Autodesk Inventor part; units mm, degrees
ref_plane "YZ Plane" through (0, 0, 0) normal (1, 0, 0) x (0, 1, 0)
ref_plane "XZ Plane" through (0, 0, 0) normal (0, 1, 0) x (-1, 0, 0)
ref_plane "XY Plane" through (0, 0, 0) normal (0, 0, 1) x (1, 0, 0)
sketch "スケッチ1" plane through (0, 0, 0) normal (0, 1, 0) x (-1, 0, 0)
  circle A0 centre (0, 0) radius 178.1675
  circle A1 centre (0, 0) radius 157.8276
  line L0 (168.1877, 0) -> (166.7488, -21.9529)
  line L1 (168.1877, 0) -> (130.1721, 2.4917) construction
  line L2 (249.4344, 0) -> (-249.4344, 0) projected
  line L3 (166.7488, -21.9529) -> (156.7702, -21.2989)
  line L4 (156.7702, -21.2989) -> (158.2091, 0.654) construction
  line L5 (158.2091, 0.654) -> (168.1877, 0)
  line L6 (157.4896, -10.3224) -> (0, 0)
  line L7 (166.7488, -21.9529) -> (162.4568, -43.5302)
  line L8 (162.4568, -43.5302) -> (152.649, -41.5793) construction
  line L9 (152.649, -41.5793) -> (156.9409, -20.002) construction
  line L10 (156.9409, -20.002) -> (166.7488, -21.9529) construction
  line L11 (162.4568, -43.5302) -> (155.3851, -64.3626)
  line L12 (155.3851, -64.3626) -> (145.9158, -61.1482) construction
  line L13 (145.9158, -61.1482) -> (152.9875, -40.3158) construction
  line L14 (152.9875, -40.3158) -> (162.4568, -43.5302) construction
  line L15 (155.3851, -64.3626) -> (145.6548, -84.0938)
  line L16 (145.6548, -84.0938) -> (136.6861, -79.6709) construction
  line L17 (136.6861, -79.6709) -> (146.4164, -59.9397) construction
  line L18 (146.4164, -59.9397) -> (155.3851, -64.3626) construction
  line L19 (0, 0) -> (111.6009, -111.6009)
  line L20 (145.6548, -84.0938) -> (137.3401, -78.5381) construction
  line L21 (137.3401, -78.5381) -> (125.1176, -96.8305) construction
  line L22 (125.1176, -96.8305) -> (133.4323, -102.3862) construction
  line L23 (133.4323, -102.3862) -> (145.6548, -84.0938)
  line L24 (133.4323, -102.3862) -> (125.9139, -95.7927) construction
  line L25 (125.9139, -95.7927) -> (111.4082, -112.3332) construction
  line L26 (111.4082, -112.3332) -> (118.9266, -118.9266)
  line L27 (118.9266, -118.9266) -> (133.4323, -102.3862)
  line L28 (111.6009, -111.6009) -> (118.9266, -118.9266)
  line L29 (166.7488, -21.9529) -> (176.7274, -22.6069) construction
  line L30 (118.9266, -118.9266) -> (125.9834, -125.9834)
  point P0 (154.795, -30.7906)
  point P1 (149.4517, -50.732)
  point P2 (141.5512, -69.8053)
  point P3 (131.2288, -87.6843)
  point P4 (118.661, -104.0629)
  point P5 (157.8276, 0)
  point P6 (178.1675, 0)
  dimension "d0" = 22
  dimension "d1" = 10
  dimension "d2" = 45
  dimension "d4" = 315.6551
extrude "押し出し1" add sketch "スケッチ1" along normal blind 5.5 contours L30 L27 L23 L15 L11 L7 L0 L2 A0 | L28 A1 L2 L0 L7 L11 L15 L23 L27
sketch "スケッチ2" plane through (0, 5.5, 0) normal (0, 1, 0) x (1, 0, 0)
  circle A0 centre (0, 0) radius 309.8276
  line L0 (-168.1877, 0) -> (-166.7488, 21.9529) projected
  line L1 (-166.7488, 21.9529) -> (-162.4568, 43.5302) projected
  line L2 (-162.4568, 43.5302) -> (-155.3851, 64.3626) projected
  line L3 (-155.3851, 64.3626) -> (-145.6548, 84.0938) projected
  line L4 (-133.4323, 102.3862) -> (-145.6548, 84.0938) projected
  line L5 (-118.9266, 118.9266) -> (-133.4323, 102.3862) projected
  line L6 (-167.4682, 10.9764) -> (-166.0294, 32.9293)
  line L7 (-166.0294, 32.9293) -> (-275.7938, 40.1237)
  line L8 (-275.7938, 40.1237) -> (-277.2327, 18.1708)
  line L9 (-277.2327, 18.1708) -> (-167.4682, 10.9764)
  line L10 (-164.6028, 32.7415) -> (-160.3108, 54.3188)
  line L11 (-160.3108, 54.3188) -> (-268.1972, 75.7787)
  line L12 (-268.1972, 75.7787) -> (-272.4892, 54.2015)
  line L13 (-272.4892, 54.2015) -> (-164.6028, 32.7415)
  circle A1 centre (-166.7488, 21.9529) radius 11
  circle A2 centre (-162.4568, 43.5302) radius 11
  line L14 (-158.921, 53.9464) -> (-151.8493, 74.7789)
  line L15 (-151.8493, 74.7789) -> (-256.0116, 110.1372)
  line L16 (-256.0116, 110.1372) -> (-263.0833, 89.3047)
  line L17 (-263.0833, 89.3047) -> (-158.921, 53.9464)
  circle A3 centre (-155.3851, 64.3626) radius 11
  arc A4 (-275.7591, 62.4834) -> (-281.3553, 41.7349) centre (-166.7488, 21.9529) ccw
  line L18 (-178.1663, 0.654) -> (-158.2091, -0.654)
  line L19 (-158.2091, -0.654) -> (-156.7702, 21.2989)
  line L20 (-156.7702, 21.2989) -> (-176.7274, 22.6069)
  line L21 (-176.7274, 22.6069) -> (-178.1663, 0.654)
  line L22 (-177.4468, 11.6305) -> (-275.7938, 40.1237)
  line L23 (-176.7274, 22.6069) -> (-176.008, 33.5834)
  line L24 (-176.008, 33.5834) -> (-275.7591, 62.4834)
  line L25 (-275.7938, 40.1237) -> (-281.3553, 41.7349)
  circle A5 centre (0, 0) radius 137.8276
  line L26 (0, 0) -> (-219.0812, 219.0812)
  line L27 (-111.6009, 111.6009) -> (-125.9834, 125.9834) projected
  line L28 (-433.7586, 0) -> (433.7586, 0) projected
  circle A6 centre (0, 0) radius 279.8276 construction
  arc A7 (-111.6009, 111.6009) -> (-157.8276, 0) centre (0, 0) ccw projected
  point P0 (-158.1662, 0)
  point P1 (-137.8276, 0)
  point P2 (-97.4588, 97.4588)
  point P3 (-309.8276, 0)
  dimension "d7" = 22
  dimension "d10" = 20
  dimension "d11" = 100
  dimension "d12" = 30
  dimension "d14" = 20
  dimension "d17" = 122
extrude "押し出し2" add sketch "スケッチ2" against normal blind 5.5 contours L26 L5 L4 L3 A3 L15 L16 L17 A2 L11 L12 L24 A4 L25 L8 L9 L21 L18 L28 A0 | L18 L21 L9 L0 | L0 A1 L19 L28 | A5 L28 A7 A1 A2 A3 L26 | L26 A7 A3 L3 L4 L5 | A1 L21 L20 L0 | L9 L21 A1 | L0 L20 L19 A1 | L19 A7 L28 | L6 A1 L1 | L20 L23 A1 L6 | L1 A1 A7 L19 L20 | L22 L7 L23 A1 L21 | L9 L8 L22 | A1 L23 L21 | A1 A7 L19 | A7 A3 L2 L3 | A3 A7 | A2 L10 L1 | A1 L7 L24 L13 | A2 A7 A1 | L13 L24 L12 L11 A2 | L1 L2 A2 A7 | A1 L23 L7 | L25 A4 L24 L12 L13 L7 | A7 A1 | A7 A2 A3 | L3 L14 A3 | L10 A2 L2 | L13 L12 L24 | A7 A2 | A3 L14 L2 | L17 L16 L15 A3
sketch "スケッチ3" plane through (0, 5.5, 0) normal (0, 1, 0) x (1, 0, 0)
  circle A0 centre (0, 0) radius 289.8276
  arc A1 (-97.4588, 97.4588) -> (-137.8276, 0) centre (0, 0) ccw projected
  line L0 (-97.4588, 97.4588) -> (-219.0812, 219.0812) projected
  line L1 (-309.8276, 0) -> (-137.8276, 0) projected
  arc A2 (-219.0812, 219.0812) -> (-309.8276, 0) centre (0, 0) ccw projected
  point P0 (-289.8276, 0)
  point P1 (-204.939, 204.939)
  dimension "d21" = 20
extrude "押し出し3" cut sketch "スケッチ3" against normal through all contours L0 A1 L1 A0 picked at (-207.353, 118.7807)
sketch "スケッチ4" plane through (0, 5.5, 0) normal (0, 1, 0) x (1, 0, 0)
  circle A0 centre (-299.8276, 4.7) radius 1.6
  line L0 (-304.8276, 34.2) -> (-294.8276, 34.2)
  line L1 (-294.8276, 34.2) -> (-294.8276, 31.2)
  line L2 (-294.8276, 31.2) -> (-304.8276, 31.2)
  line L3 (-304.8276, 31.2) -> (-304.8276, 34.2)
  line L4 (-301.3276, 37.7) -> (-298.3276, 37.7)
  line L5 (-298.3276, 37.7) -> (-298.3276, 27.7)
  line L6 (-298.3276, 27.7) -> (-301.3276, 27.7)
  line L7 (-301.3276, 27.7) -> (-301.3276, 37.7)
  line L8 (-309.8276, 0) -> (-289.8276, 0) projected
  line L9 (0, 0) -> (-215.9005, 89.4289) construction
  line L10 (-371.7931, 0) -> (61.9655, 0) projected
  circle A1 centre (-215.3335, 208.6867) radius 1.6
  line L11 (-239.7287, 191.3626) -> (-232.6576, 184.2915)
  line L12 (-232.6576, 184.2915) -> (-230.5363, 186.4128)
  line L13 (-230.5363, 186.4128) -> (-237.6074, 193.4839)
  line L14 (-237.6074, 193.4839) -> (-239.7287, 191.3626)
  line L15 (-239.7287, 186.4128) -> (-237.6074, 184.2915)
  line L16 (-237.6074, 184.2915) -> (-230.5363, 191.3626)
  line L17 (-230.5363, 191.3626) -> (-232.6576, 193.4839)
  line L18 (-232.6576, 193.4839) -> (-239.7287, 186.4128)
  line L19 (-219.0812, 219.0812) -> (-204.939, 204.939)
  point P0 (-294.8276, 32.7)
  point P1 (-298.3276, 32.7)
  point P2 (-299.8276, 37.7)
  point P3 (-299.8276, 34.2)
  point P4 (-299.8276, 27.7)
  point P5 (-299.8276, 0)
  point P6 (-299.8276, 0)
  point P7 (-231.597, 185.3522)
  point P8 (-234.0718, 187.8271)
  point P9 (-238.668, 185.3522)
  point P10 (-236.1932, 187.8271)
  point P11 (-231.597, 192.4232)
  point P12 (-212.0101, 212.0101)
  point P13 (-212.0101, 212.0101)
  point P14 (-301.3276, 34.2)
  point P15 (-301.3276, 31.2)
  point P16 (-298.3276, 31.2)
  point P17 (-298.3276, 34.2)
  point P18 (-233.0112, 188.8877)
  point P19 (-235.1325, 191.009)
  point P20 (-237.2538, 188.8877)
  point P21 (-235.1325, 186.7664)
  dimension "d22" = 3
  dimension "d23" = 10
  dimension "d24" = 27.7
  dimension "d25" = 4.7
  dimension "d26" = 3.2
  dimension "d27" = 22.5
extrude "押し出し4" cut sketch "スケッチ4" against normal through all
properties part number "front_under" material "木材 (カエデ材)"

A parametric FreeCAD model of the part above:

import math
import FreeCAD as App
import Part
import Sketcher
from FreeCAD import Vector
Q = App.Units.Quantity

doc = App.newDocument("Part")
body = doc.addObject("PartDesign::Body", "Body")

# Sketch on XZ plane
sketch1 = body.newObject("Sketcher::SketchObject", "Sketch")
sketch1.AttachmentSupport = (doc.getObject("XZ_Plane"), [""])
sketch1.MapMode = "FlatFace"
sketch1.addGeometry(Part.ArcOfCircle(Part.Circle(Vector(0, 0, 0), Vector(0, 0, 1), 178), math.radians(180), math.radians(225)), False)
sketch1.addGeometry(Part.LineSegment(Vector(-178, 0, 0), Vector(-158, 0, 0)), False)
sketch1.addGeometry(Part.ArcOfCircle(Part.Circle(Vector(0, 0, 0), Vector(0, 0, 1), 158), math.radians(180), math.radians(225)), False)
sketch1.addGeometry(Part.LineSegment(Vector(-112, -112, 0), Vector(-126, -126, 0)), False)
sketch1.addConstraint(Sketcher.Constraint("Coincident", 0, 1, 1, 1))
sketch1.addConstraint(Sketcher.Constraint("Coincident", 1, 2, 2, 1))
sketch1.addConstraint(Sketcher.Constraint("Coincident", 2, 2, 3, 1))
sketch1.addConstraint(Sketcher.Constraint("Coincident", 3, 2, 0, 2))
sketch1.addConstraint(Sketcher.Constraint("Horizontal", 1))
sketch1.addConstraint(Sketcher.Constraint("Coincident", 0, 3, -1, 1))
sketch1.addConstraint(Sketcher.Constraint("Coincident", 2, 3, -1, 1))
sketch1.addConstraint(Sketcher.Constraint("PointOnObject", 0, 1, -1))
sketch1.addConstraint(Sketcher.Constraint("Radius", 2, Q("157.8276 mm")))
sketch1.addConstraint(Sketcher.Constraint("Angle", 3, Q("-135 deg")))
sketch1.addConstraint(Sketcher.Constraint("DistanceX", 1, 1, 1, 2, Q("20.34 mm")))
sketch1.addConstraint(Sketcher.Constraint("DistanceX", 2, 2, -1, 1, Q("111.601 mm")))
pad1 = body.newObject("PartDesign::Pad", "Pad")
pad1.Profile = sketch1
pad1.Length = 5.5
pad1.Reversed = True

# Sketch on XZ plane
sketch2 = body.newObject("Sketcher::SketchObject", "Sketch001")
sketch2.AttachmentSupport = (doc.getObject("XZ_Plane"), [""])
sketch2.MapMode = "FlatFace"
sketch2.AttachmentOffset = App.Placement(Vector(0, 0, -5.5), App.Rotation())
sketch2.addGeometry(Part.ArcOfCircle(Part.Circle(Vector(0, 0, 0), Vector(0, 0, 1), 310), math.radians(180), math.radians(225)), False)
sketch2.addGeometry(Part.LineSegment(Vector(-310, 0, 0), Vector(-138, 0, 0)), False)
sketch2.addGeometry(Part.ArcOfCircle(Part.Circle(Vector(0, 0, 0), Vector(0, 0, 1), 138), math.radians(180), math.radians(225)), False)
sketch2.addGeometry(Part.LineSegment(Vector(-97, -97, 0), Vector(-219, -219, 0)), False)
sketch2.addConstraint(Sketcher.Constraint("Coincident", 0, 1, 1, 1))
sketch2.addConstraint(Sketcher.Constraint("Coincident", 1, 2, 2, 1))
sketch2.addConstraint(Sketcher.Constraint("Coincident", 2, 2, 3, 1))
sketch2.addConstraint(Sketcher.Constraint("Coincident", 3, 2, 0, 2))
sketch2.addConstraint(Sketcher.Constraint("Horizontal", 1))
sketch2.addConstraint(Sketcher.Constraint("Coincident", 0, 3, -1, 1))
sketch2.addConstraint(Sketcher.Constraint("Coincident", 2, 3, -1, 1))
sketch2.addConstraint(Sketcher.Constraint("PointOnObject", 0, 1, -1))
sketch2.addConstraint(Sketcher.Constraint("DistanceX", 1, 1, 1, 2, Q("172 mm")))
sketch2.addConstraint(Sketcher.Constraint("Angle", 3, Q("-135 deg")))
sketch2.addConstraint(Sketcher.Constraint("Radius", 0, Q("309.8276 mm")))
sketch2.addConstraint(Sketcher.Constraint("DistanceX", 2, 2, -1, 1, Q("97.4588 mm")))
pad2 = body.newObject("PartDesign::Pad", "Pad001")
pad2.Profile = sketch2
pad2.Length = 5.5

# Sketch on XZ plane
sketch3 = body.newObject("Sketcher::SketchObject", "Sketch002")
sketch3.AttachmentSupport = (doc.getObject("XZ_Plane"), [""])
sketch3.MapMode = "FlatFace"
sketch3.AttachmentOffset = App.Placement(Vector(0, 0, -5.5), App.Rotation())
sketch3.addGeometry(Part.LineSegment(Vector(-97, -97, 0), Vector(-205, -205, 0)), False)
sketch3.addGeometry(Part.ArcOfCircle(Part.Circle(Vector(0, 0, 0), Vector(0, 0, 1), 290), math.radians(180), math.radians(225)), False)
sketch3.addGeometry(Part.LineSegment(Vector(-290, 0, 0), Vector(-138, 0, 0)), False)
sketch3.addGeometry(Part.ArcOfCircle(Part.Circle(Vector(0, 0, 0), Vector(0, 0, 1), 138), math.radians(180), math.radians(225)), False)
sketch3.addConstraint(Sketcher.Constraint("Coincident", 0, 2, 1, 2))
sketch3.addConstraint(Sketcher.Constraint("Coincident", 1, 1, 2, 1))
sketch3.addConstraint(Sketcher.Constraint("Coincident", 2, 2, 3, 1))
sketch3.addConstraint(Sketcher.Constraint("Coincident", 3, 2, 0, 1))
sketch3.addConstraint(Sketcher.Constraint("Horizontal", 2))
sketch3.addConstraint(Sketcher.Constraint("Coincident", 1, 3, -1, 1))
sketch3.addConstraint(Sketcher.Constraint("Coincident", 3, 3, -1, 1))
sketch3.addConstraint(Sketcher.Constraint("PointOnObject", 1, 1, -1))
sketch3.addConstraint(Sketcher.Constraint("DistanceX", 2, 1, 2, 2, Q("152 mm")))
sketch3.addConstraint(Sketcher.Constraint("Angle", 0, Q("-135 deg")))
sketch3.addConstraint(Sketcher.Constraint("Radius", 1, Q("289.8276 mm")))
sketch3.addConstraint(Sketcher.Constraint("DistanceX", 0, 2, -1, 1, Q("204.939 mm")))
pocket1 = body.newObject("PartDesign::Pocket", "Pocket")
pocket1.Profile = sketch3
pocket1.Type = "ThroughAll"
pocket1.Reversed = True

# Sketch on XZ plane
sketch4 = body.newObject("Sketcher::SketchObject", "Sketch003")
sketch4.AttachmentSupport = (doc.getObject("XZ_Plane"), [""])
sketch4.MapMode = "FlatFace"
sketch4.AttachmentOffset = App.Placement(Vector(0, 0, -5.5), App.Rotation())
sketch4.addGeometry(Part.Circle(Vector(-299.8, -4.7, 0), Vector(0, 0, 1), 1.6), False)
sketch4.addGeometry(Part.LineSegment(Vector(-301.3, -34.2, 0), Vector(-304.8, -34.2, 0)), False)
sketch4.addGeometry(Part.LineSegment(Vector(-304.8, -34.2, 0), Vector(-304.8, -31.2, 0)), False)
sketch4.addGeometry(Part.LineSegment(Vector(-304.8, -31.2, 0), Vector(-301.3, -31.2, 0)), False)
sketch4.addGeometry(Part.LineSegment(Vector(-301.3, -31.2, 0), Vector(-301.3, -27.7, 0)), False)
sketch4.addGeometry(Part.LineSegment(Vector(-301.3, -27.7, 0), Vector(-298.3, -27.7, 0)), False)
sketch4.addGeometry(Part.LineSegment(Vector(-298.3, -27.7, 0), Vector(-298.3, -31.2, 0)), False)
sketch4.addGeometry(Part.LineSegment(Vector(-298.3, -31.2, 0), Vector(-294.8, -31.2, 0)), False)
sketch4.addGeometry(Part.LineSegment(Vector(-294.8, -31.2, 0), Vector(-294.8, -34.2, 0)), False)
sketch4.addGeometry(Part.LineSegment(Vector(-294.8, -34.2, 0), Vector(-298.3, -34.2, 0)), False)
sketch4.addGeometry(Part.LineSegment(Vector(-298.3, -34.2, 0), Vector(-298.3, -37.7, 0)), False)
sketch4.addGeometry(Part.LineSegment(Vector(-298.3, -37.7, 0), Vector(-301.3, -37.7, 0)), False)
sketch4.addGeometry(Part.LineSegment(Vector(-301.3, -37.7, 0), Vector(-301.3, -34.2, 0)), False)
sketch4.addGeometry(Part.Circle(Vector(-215.3, -208.7, 0), Vector(0, 0, 1), 1.6), False)
sketch4.addGeometry(Part.LineSegment(Vector(-237.6, -193.5, 0), Vector(-239.7, -191.4, 0)), False)
sketch4.addGeometry(Part.LineSegment(Vector(-239.7, -191.4, 0), Vector(-237.3, -188.9, 0)), False)
sketch4.addGeometry(Part.LineSegment(Vector(-237.3, -188.9, 0), Vector(-239.7, -186.4, 0)), False)
sketch4.addGeometry(Part.LineSegment(Vector(-239.7, -186.4, 0), Vector(-237.6, -184.3, 0)), False)
sketch4.addGeometry(Part.LineSegment(Vector(-237.6, -184.3, 0), Vector(-235.1, -186.8, 0)), False)
sketch4.addGeometry(Part.LineSegment(Vector(-235.1, -186.8, 0), Vector(-232.7, -184.3, 0)), False)
sketch4.addGeometry(Part.LineSegment(Vector(-232.7, -184.3, 0), Vector(-230.5, -186.4, 0)), False)
sketch4.addGeometry(Part.LineSegment(Vector(-230.5, -186.4, 0), Vector(-233, -188.9, 0)), False)
sketch4.addGeometry(Part.LineSegment(Vector(-233, -188.9, 0), Vector(-230.5, -191.4, 0)), False)
sketch4.addGeometry(Part.LineSegment(Vector(-230.5, -191.4, 0), Vector(-232.7, -193.5, 0)), False)
sketch4.addGeometry(Part.LineSegment(Vector(-232.7, -193.5, 0), Vector(-235.1, -191, 0)), False)
sketch4.addGeometry(Part.LineSegment(Vector(-235.1, -191, 0), Vector(-237.6, -193.5, 0)), False)
sketch4.addConstraint(Sketcher.Constraint("Coincident", 1, 2, 2, 1))
sketch4.addConstraint(Sketcher.Constraint("Coincident", 2, 2, 3, 1))
sketch4.addConstraint(Sketcher.Constraint("Coincident", 3, 2, 4, 1))
sketch4.addConstraint(Sketcher.Constraint("Coincident", 4, 2, 5, 1))
sketch4.addConstraint(Sketcher.Constraint("Coincident", 5, 2, 6, 1))
sketch4.addConstraint(Sketcher.Constraint("Coincident", 6, 2, 7, 1))
sketch4.addConstraint(Sketcher.Constraint("Coincident", 7, 2, 8, 1))
sketch4.addConstraint(Sketcher.Constraint("Coincident", 8, 2, 9, 1))
sketch4.addConstraint(Sketcher.Constraint("Coincident", 9, 2, 10, 1))
sketch4.addConstraint(Sketcher.Constraint("Coincident", 10, 2, 11, 1))
sketch4.addConstraint(Sketcher.Constraint("Coincident", 11, 2, 12, 1))
sketch4.addConstraint(Sketcher.Constraint("Coincident", 12, 2, 1, 1))
sketch4.addConstraint(Sketcher.Constraint("Coincident", 14, 2, 15, 1))
sketch4.addConstraint(Sketcher.Constraint("Coincident", 15, 2, 16, 1))
sketch4.addConstraint(Sketcher.Constraint("Coincident", 16, 2, 17, 1))
sketch4.addConstraint(Sketcher.Constraint("Coincident", 17, 2, 18, 1))
sketch4.addConstraint(Sketcher.Constraint("Coincident", 18, 2, 19, 1))
sketch4.addConstraint(Sketcher.Constraint("Coincident", 19, 2, 20, 1))
sketch4.addConstraint(Sketcher.Constraint("Coincident", 20, 2, 21, 1))
sketch4.addConstraint(Sketcher.Constraint("Coincident", 21, 2, 22, 1))
sketch4.addConstraint(Sketcher.Constraint("Coincident", 22, 2, 23, 1))
sketch4.addConstraint(Sketcher.Constraint("Coincident", 23, 2, 24, 1))
sketch4.addConstraint(Sketcher.Constraint("Coincident", 24, 2, 25, 1))
sketch4.addConstraint(Sketcher.Constraint("Coincident", 25, 2, 14, 1))
sketch4.addConstraint(Sketcher.Constraint("Horizontal", 1))
sketch4.addConstraint(Sketcher.Constraint("Vertical", 2))
sketch4.addConstraint(Sketcher.Constraint("Horizontal", 3))
sketch4.addConstraint(Sketcher.Constraint("Vertical", 4))
sketch4.addConstraint(Sketcher.Constraint("Horizontal", 5))
sketch4.addConstraint(Sketcher.Constraint("Vertical", 6))
sketch4.addConstraint(Sketcher.Constraint("Horizontal", 7))
sketch4.addConstraint(Sketcher.Constraint("Vertical", 8))
sketch4.addConstraint(Sketcher.Constraint("Horizontal", 9))
sketch4.addConstraint(Sketcher.Constraint("Vertical", 10))
sketch4.addConstraint(Sketcher.Constraint("Horizontal", 11))
sketch4.addConstraint(Sketcher.Constraint("Vertical", 12))
sketch4.addConstraint(Sketcher.Constraint("Equal", 0, 13))
sketch4.addConstraint(Sketcher.Constraint("Perpendicular", 14, 15))
sketch4.addConstraint(Sketcher.Constraint("Perpendicular", 15, 16))
sketch4.addConstraint(Sketcher.Constraint("Perpendicular", 16, 17))
sketch4.addConstraint(Sketcher.Constraint("Perpendicular", 17, 18))
sketch4.addConstraint(Sketcher.Constraint("Perpendicular", 18, 19))
sketch4.addConstraint(Sketcher.Constraint("Perpendicular", 19, 20))
sketch4.addConstraint(Sketcher.Constraint("Perpendicular", 20, 21))
sketch4.addConstraint(Sketcher.Constraint("Perpendicular", 21, 22))
sketch4.addConstraint(Sketcher.Constraint("Perpendicular", 22, 23))
sketch4.addConstraint(Sketcher.Constraint("Perpendicular", 23, 24))
sketch4.addConstraint(Sketcher.Constraint("Perpendicular", 24, 25))
sketch4.addConstraint(Sketcher.Constraint("Horizontal", 3, 2, 6, 2))
sketch4.addConstraint(Sketcher.Constraint("Horizontal", 1, 2, 8, 2))
sketch4.addConstraint(Sketcher.Constraint("Horizontal", 17, 2, 19, 2))
sketch4.addConstraint(Sketcher.Constraint("Horizontal", 16, 2, 20, 2))
sketch4.addConstraint(Sketcher.Constraint("Horizontal", 15, 2, 21, 2))
sketch4.addConstraint(Sketcher.Constraint("Horizontal", 14, 2, 22, 2))
sketch4.addConstraint(Sketcher.Constraint("Horizontal", 23, 2, 25, 2))
sketch4.addConstraint(Sketcher.Constraint("Vertical", 6, 2, 9, 2))
sketch4.addConstraint(Sketcher.Constraint("Vertical", 4, 2, 11, 2))
sketch4.addConstraint(Sketcher.Constraint("Vertical", 14, 2, 16, 2))
sketch4.addConstraint(Sketcher.Constraint("Vertical", 20, 2, 22, 2))
sketch4.addConstraint(Sketcher.Constraint("Vertical", 19, 2, 23, 2))
sketch4.addConstraint(Sketcher.Constraint("Equal", 3, 7))
sketch4.addConstraint(Sketcher.Constraint("Equal", 11, 2))
sketch4.addConstraint(Sketcher.Constraint("Equal", 9, 4))
sketch4.addConstraint(Sketcher.Constraint("Equal", 6, 10))
sketch4.addConstraint(Sketcher.Constraint("Equal", 16, 18))
sketch4.addConstraint(Sketcher.Constraint("Diameter", 0, Q("3.2 mm")))
sketch4.addConstraint(Sketcher.Constraint("DistanceX", 5, 1, 5, 2, Q("3 mm")))
sketch4.addConstraint(Sketcher.Constraint("Distance", 14, Q("3 mm")))
sketch4.addConstraint(Sketcher.Constraint("DistanceX", 2, 2, 7, 2, Q("10 mm")))
sketch4.addConstraint(Sketcher.Constraint("DistanceY", 0, 3, -1, 1, Q("4.7 mm")))
sketch4.addConstraint(Sketcher.Constraint("DistanceY", 4, 2, -1, 1, Q("27.7 mm")))
sketch4.addConstraint(Sketcher.Constraint("DistanceX", 1, 2, 0, 3, Q("5 mm")))
sketch4.addConstraint(Sketcher.Constraint("Distance", 15, Q("3.5 mm")))
sketch4.addConstraint(Sketcher.Constraint("DistanceY", 23, 2, -1, 1, Q("193.484 mm")))
sketch4.addConstraint(Sketcher.Constraint("DistanceX", 0, 3, 13, 3, Q("84.494 mm")))
sketch4.addConstraint(Sketcher.Constraint("DistanceY", 13, 3, 14, 2, Q("17.324 mm")))
sketch4.addConstraint(Sketcher.Constraint("DistanceX", 10, 2, 14, 2, Q("58.599 mm")))
sketch4.addConstraint(Sketcher.Constraint("DistanceX", 0, 3, -1, 1, Q("299.8276 mm")))
pocket2 = body.newObject("PartDesign::Pocket", "Pocket001")
pocket2.Profile = sketch4
pocket2.Type = "ThroughAll"
pocket2.Reversed = True

doc.recompute()
